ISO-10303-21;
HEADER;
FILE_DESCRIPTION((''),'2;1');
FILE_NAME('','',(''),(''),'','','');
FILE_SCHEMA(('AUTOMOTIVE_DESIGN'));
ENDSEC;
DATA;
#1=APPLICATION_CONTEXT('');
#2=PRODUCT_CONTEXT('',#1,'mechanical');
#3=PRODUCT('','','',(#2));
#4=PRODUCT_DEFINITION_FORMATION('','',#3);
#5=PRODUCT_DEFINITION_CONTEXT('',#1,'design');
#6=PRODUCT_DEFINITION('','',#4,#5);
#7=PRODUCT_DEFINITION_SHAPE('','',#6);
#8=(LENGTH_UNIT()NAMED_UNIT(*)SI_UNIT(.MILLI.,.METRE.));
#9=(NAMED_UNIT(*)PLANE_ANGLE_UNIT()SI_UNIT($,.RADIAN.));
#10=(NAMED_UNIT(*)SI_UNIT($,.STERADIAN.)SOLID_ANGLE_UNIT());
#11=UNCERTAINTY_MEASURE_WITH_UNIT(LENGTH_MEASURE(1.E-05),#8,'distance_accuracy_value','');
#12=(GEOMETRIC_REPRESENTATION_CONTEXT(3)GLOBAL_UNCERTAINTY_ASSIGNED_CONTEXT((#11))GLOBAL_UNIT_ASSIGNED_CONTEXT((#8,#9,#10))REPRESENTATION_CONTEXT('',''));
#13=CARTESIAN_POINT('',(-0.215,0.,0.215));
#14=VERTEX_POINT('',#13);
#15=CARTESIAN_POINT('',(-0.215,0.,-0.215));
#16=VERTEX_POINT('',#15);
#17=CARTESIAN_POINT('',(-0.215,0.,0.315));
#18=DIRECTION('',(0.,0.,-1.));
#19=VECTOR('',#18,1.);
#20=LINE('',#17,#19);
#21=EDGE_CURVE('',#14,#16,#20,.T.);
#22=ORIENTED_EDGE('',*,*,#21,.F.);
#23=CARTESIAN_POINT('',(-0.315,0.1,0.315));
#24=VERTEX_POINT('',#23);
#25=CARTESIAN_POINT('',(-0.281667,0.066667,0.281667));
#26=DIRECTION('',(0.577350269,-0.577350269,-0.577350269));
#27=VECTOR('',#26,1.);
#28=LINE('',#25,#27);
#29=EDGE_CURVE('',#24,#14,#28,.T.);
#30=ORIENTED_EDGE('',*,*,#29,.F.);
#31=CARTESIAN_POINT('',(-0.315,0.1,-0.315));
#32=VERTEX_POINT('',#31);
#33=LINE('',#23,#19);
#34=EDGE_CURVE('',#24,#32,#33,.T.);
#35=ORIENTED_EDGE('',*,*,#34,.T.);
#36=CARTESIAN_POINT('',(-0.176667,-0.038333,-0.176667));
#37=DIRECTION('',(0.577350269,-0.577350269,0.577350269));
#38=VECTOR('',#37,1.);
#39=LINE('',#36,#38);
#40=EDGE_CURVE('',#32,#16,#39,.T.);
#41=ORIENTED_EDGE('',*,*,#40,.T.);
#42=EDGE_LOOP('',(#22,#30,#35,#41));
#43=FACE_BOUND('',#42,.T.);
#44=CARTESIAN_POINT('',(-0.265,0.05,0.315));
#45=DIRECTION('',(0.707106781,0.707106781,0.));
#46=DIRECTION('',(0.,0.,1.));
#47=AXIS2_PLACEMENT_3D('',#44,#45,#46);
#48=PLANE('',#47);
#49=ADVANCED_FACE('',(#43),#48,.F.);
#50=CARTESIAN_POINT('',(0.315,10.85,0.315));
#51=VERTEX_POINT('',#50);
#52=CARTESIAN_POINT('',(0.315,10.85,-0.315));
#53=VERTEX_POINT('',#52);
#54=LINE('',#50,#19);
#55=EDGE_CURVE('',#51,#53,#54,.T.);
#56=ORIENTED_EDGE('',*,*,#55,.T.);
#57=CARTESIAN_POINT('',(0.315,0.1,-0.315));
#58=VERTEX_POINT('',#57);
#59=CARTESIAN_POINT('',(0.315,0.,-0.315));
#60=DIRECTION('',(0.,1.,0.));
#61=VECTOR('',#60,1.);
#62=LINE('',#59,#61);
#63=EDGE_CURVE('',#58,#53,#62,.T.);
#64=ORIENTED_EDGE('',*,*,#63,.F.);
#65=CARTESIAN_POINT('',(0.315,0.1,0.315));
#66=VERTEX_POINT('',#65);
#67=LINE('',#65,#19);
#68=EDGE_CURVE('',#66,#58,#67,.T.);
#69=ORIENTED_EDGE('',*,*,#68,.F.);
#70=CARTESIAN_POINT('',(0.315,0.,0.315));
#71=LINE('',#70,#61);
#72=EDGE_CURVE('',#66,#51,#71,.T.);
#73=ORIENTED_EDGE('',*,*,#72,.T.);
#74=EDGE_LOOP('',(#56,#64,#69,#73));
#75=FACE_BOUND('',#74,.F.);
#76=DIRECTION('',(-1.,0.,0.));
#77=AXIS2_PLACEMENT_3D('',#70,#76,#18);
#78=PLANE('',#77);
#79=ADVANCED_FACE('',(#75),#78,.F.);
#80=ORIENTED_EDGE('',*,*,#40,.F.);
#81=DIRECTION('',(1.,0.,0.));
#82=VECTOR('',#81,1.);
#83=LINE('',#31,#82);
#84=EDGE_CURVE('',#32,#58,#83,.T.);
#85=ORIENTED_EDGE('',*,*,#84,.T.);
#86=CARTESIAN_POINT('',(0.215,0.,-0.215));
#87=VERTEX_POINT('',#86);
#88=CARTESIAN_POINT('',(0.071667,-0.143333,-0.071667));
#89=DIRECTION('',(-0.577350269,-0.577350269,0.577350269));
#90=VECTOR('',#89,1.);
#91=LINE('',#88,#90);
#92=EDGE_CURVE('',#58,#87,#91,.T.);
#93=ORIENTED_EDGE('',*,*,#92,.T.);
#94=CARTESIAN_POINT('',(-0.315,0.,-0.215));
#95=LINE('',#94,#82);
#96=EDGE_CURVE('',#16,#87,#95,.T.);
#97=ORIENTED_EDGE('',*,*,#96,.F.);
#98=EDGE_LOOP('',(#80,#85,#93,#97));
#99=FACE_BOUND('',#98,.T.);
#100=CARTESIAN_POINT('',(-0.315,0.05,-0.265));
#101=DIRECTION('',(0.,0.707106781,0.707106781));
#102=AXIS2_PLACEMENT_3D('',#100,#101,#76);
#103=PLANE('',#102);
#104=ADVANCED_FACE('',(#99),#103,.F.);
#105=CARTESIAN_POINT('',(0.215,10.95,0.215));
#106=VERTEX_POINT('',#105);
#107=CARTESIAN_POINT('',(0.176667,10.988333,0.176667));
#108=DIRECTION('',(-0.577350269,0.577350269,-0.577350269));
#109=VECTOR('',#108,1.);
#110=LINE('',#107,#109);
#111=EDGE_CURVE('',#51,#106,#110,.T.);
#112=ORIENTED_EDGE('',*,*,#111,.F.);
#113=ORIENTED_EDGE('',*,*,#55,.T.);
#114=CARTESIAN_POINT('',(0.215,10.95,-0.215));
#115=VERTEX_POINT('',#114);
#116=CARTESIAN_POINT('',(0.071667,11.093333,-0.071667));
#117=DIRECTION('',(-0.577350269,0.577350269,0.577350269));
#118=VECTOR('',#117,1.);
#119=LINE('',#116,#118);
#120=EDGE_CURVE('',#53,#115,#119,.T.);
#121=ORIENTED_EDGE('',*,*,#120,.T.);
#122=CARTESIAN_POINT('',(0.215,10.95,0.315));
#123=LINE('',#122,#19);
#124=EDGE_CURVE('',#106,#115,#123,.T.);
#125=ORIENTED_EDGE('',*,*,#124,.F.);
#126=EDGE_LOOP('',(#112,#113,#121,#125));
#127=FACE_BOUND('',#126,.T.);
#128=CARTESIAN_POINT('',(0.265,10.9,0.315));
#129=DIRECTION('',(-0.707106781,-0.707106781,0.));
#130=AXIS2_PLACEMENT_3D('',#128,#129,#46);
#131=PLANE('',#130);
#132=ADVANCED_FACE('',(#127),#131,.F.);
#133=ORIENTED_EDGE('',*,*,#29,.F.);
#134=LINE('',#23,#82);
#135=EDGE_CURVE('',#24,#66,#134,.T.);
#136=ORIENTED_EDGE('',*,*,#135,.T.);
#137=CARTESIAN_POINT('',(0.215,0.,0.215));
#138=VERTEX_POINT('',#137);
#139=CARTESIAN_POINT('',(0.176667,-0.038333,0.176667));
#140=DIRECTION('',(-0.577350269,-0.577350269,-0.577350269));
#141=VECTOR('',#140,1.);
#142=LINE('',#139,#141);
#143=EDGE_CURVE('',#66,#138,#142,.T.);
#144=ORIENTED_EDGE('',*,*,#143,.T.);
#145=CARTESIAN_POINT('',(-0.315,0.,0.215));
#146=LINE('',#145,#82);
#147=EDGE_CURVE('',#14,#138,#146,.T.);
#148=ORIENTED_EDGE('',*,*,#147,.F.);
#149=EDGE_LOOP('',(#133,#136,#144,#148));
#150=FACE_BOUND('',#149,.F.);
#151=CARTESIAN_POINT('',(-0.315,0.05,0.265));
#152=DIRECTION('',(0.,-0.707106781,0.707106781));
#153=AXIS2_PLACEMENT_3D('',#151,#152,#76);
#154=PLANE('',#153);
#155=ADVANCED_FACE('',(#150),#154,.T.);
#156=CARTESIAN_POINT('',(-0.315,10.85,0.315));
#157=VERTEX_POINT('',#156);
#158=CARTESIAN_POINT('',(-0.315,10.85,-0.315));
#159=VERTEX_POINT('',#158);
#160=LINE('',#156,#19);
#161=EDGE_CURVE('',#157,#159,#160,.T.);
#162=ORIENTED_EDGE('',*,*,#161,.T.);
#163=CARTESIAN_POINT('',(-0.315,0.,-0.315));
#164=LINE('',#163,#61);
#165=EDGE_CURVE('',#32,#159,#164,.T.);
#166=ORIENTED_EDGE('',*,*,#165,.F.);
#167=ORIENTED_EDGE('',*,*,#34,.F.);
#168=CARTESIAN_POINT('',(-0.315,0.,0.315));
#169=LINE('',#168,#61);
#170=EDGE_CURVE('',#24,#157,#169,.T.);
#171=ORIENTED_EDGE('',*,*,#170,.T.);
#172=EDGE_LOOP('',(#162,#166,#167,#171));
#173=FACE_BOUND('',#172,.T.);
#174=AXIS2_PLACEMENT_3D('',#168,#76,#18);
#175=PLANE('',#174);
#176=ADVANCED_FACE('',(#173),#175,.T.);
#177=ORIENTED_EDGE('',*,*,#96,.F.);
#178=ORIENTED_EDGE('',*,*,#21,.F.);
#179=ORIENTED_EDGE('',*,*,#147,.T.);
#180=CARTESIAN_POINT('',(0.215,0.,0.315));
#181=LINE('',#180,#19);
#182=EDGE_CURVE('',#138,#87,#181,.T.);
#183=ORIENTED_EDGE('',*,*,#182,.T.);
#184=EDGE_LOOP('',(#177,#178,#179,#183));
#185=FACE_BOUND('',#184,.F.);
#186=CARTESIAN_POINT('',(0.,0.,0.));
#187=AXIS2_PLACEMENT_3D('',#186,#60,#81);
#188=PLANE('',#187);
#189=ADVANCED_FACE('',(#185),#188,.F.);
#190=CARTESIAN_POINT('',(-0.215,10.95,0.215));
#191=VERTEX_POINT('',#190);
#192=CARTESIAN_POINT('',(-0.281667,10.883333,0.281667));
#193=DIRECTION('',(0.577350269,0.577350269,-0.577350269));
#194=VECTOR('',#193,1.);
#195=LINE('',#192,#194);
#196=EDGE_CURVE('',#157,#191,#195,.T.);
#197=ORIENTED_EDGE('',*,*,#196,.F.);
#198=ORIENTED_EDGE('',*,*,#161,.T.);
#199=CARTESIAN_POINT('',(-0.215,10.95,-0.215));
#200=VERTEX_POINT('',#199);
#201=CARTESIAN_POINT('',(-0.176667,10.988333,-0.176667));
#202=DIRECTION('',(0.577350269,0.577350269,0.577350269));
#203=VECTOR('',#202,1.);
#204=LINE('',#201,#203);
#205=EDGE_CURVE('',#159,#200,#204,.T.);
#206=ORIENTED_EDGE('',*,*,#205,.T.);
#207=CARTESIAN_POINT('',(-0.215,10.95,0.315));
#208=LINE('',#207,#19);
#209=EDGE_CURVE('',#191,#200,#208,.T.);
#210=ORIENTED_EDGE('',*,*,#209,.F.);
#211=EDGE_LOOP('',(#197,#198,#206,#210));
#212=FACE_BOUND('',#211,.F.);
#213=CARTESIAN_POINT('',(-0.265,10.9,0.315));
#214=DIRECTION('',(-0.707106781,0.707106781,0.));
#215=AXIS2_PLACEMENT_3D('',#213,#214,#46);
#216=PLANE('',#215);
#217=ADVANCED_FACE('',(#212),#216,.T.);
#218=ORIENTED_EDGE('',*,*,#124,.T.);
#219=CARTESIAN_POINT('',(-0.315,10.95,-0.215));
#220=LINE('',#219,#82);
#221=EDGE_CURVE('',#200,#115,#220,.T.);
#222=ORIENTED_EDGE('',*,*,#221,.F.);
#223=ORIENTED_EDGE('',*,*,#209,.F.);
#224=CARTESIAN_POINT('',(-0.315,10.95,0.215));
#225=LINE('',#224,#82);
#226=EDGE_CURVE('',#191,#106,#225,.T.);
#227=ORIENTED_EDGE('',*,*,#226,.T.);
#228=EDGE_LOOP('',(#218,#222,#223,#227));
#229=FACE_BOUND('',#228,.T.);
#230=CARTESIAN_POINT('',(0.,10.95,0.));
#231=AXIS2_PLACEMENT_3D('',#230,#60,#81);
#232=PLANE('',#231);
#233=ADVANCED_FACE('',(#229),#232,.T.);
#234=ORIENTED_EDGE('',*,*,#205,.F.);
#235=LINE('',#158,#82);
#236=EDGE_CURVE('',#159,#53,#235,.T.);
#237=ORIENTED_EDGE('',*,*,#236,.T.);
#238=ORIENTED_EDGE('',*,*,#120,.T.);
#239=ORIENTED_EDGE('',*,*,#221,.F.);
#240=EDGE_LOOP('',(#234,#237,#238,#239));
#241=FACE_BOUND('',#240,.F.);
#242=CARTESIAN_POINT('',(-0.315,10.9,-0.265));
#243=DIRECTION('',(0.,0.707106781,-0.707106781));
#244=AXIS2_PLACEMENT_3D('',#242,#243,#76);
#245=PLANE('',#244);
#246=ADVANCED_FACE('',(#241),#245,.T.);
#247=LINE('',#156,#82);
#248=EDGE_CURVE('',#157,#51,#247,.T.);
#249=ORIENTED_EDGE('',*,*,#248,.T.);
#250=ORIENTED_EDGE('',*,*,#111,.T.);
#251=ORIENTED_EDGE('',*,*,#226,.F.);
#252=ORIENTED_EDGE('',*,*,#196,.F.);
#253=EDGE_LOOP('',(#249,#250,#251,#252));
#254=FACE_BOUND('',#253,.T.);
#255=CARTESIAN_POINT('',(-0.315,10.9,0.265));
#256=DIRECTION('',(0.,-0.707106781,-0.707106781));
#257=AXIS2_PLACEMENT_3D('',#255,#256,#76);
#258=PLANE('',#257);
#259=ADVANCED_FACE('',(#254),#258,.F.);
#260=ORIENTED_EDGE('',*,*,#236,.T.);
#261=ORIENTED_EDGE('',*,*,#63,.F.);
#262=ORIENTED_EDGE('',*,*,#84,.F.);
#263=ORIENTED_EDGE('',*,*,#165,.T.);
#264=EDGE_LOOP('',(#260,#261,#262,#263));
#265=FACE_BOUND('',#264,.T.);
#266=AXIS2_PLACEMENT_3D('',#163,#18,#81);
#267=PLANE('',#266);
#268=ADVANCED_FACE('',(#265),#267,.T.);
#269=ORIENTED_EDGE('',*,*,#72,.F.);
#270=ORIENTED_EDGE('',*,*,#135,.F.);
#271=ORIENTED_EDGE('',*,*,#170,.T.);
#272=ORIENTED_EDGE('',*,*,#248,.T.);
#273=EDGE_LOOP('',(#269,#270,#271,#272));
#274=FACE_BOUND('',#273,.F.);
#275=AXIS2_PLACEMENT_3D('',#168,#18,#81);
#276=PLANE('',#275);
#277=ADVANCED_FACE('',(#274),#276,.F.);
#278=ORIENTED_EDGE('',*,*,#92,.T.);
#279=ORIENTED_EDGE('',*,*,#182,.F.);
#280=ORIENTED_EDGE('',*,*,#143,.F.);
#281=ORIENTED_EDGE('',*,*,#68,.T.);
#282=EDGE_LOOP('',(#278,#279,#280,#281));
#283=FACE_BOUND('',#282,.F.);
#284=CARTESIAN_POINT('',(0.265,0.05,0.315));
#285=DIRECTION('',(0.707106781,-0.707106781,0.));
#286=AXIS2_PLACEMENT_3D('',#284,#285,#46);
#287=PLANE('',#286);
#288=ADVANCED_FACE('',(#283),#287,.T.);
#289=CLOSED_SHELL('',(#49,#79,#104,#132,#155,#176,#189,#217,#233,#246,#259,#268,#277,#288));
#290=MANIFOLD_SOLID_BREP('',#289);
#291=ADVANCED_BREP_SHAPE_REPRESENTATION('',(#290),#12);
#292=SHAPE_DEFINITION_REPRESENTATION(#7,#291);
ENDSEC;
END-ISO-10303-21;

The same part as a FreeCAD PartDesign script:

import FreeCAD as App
import Part
import Sketcher
from FreeCAD import Vector
Q = App.Units.Quantity


def edges_at(feature, points):
    """Names of the edges that pass closest to the given points."""
    edges = feature.Shape.Edges
    near = lambda p: min(range(len(edges)), key=lambda i: edges[i].distToShape(Part.Vertex(*p))[0])
    return sorted({f"Edge{near(p) + 1}" for p in points})


def add_polygon(sketch, points):
    """Adds a closed chain of lines whose ends are joined by coincident constraints."""
    first, n = sketch.GeometryCount, len(points)
    for a, b in zip(points, points[1:] + points[:1]):
        sketch.addGeometry(Part.LineSegment(App.Vector(*a, 0), App.Vector(*b, 0)), False)
    for i in range(n):
        sketch.addConstraint(Sketcher.Constraint("Coincident", first + i, 2, first + (i + 1) % n, 1))

doc = App.newDocument("Part")
params = doc.addObject("Spreadsheet::Sheet", "Params")
for row, (alias, value) in enumerate([
    ("sketch1_width", "0.63 mm"),
    ("pad1_length", "10.95 mm"),
    ("chamfer_size", "0.1 mm"),
], start=1):
    params.set(f"A{row}", alias)
    params.set(f"B{row}", "=" + value)
    params.setAlias(f"B{row}", alias)

body = doc.addObject("PartDesign::Body", "Body")

sketch1 = body.newObject("Sketcher::SketchObject", "Sketch")
sketch1.AttachmentSupport = (doc.getObject("XZ_Plane"), [""])
sketch1.MapMode = "FlatFace"
add_polygon(sketch1, [(-0.315, -0.315), (-0.315, 0.315), (0.315, 0.315), (0.315, -0.315)])
sketch1.addConstraint([
    Sketcher.Constraint("Vertical", 0),
    Sketcher.Constraint("Horizontal", 1),
    Sketcher.Constraint("Vertical", 2),
    Sketcher.Constraint("Horizontal", 3),
    Sketcher.Constraint("Symmetric", 0, 2, 2, 2, -1, 1),
    Sketcher.Constraint("Equal", 3, 0),
    Sketcher.Constraint("DistanceX", 1, 1, 1, 2, Q("0.63 mm")),
])
sketch1.setExpression("Constraints[10]", "Params.sketch1_width")
pad1 = body.newObject("PartDesign::Pad", "Pad")
pad1.Profile = sketch1
pad1.setExpression("Length", "Params.pad1_length")
pad1.Reversed = True
doc.recompute()

chamfer = body.newObject("PartDesign::Chamfer", "Chamfer")
chamfer.Base = (pad1, edges_at(pad1, [
    (-0.315, 10.95, 0),
    (0, 10.95, 0.315),
    (0.315, 10.95, 0),
    (0, 0, 0.315),
    (-0.315, 0, 0),
    (0, 0, -0.315),
    (0.315, 0, 0),
    (0, 10.95, -0.315),
]))
chamfer.setExpression("Size", "Params.chamfer_size")

doc.recompute()
